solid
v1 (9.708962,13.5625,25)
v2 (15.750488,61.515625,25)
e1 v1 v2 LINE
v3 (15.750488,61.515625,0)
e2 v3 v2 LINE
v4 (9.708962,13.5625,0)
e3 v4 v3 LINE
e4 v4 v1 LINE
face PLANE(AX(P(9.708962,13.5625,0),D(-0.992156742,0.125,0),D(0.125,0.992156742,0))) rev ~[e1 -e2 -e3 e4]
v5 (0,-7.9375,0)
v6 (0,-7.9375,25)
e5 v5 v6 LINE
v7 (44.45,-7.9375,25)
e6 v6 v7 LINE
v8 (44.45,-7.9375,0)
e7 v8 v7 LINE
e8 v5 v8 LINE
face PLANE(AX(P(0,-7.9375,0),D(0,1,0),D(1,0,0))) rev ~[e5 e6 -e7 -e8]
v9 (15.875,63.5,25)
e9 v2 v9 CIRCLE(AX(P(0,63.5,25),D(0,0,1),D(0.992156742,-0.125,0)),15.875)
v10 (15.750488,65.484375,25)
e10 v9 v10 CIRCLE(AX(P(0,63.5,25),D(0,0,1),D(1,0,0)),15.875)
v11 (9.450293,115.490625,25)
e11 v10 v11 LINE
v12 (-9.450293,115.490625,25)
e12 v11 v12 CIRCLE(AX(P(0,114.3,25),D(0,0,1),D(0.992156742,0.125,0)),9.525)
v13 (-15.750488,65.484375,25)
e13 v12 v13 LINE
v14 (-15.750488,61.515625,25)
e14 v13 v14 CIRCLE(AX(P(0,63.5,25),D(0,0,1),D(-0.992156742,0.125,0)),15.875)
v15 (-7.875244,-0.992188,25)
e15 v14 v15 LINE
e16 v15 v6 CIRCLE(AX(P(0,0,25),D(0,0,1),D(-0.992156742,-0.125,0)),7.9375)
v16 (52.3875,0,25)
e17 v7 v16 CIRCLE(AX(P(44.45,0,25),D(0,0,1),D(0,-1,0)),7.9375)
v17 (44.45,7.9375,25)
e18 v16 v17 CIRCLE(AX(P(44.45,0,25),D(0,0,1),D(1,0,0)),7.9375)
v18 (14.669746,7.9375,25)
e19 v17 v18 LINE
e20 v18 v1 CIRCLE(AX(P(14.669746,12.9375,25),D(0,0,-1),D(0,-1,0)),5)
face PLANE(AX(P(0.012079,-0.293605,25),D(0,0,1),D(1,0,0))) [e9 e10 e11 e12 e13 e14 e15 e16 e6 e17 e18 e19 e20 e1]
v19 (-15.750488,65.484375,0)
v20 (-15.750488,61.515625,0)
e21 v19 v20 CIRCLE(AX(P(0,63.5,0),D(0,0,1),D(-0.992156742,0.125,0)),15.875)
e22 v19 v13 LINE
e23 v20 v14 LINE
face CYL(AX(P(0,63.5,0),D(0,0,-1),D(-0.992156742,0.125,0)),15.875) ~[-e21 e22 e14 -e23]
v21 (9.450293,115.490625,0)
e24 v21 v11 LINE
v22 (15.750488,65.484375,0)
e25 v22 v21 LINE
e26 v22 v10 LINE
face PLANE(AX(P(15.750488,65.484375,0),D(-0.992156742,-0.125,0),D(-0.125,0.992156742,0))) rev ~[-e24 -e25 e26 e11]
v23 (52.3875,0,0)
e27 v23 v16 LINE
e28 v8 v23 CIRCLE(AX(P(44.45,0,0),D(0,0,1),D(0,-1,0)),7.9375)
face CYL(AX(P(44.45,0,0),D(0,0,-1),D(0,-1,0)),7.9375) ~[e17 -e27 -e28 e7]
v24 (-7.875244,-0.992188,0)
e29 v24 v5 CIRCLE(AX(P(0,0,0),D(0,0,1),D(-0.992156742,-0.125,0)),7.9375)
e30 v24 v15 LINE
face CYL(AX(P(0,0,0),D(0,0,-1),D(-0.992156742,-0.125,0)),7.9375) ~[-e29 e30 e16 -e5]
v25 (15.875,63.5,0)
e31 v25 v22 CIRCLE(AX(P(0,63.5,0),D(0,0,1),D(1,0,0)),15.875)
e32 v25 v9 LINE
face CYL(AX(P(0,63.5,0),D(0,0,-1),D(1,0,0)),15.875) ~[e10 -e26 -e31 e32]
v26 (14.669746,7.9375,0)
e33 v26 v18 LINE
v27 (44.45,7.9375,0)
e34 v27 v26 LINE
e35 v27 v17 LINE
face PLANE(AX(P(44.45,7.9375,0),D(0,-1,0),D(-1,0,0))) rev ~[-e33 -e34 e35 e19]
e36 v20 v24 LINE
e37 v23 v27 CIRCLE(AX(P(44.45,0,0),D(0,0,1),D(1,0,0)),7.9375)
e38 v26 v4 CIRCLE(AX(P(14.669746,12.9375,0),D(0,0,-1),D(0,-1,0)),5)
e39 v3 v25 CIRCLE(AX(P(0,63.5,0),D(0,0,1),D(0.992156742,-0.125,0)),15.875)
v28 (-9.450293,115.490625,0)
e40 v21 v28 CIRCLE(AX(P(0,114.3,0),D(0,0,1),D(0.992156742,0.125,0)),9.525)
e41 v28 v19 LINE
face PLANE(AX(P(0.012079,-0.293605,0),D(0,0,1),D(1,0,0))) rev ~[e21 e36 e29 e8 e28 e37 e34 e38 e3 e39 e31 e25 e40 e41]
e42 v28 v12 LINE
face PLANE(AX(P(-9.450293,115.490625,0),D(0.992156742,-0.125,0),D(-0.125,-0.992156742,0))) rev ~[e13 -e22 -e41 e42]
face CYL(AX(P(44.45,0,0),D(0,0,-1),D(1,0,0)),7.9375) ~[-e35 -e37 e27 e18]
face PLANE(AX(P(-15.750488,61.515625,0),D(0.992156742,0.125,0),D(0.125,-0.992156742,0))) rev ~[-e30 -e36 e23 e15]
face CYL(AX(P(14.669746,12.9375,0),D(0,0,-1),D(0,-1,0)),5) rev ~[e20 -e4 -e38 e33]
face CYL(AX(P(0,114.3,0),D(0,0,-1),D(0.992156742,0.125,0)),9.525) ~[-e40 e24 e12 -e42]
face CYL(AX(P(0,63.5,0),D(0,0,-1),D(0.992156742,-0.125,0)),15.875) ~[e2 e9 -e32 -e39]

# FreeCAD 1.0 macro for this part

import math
import FreeCAD as App
import Part
import Sketcher
from FreeCAD import Vector
Q = App.Units.Quantity

doc = App.newDocument("Part")
body = doc.addObject("PartDesign::Body", "Body")

sketch1 = body.newObject("Sketcher::SketchObject", "Sketch")
sketch1.AttachmentSupport = (doc.getObject("XY_Plane"), [""])
sketch1.MapMode = "FlatFace"
sketch1.addGeometry([
    Part.ArcOfCircle(Part.Circle(Vector(0, 0, 0), Vector(0, 0, 1), 7.9375), math.radians(-172.819244), math.radians(-90)),
    Part.LineSegment(Vector(0, -7.9375, 0), Vector(44.45, -7.9375, 0)),
    Part.ArcOfCircle(Part.Circle(Vector(44.45, 0, 0), Vector(0, 0, 1), 7.9375), math.radians(-90), math.radians(0)),
    Part.ArcOfCircle(Part.Circle(Vector(44.45, 0, 0), Vector(0, 0, 1), 7.9375), math.radians(0), math.radians(90)),
    Part.LineSegment(Vector(44.45, 7.9375, 0), Vector(14.669746, 7.9375, 0)),
    Part.ArcOfCircle(Part.Circle(Vector(14.669746, 12.9375, 0), Vector(0, 0, 1), 5), math.radians(172.819244), math.radians(270)),
    Part.LineSegment(Vector(9.708962, 13.5625, 0), Vector(15.750488, 61.515625, 0)),
    Part.ArcOfCircle(Part.Circle(Vector(0, 63.5, 0), Vector(0, 0, 1), 15.875), math.radians(-7.180756), math.radians(0)),
    Part.ArcOfCircle(Part.Circle(Vector(0, 63.5, 0), Vector(0, 0, 1), 15.875), math.radians(0), math.radians(7.180756)),
    Part.LineSegment(Vector(15.750488, 65.484375, 0), Vector(9.450293, 115.490625, 0)),
    Part.ArcOfCircle(Part.Circle(Vector(0, 114.3, 0), Vector(0, 0, 1), 9.525), math.radians(7.180756), math.radians(172.819244)),
    Part.LineSegment(Vector(-9.450293, 115.490625, 0), Vector(-15.750488, 65.484375, 0)),
    Part.ArcOfCircle(Part.Circle(Vector(0, 63.5, 0), Vector(0, 0, 1), 15.875), math.radians(172.819244), math.radians(187.180756)),
    Part.LineSegment(Vector(-15.750488, 61.515625, 0), Vector(-7.875244, -0.992188, 0)),
], False)
sketch1.addConstraint([
    Sketcher.Constraint("Tangent", 0, 2, 1, 1),
    Sketcher.Constraint("Tangent", 1, 2, 2, 1),
    Sketcher.Constraint("Tangent", 2, 2, 3, 1),
    Sketcher.Constraint("Tangent", 3, 2, 4, 1),
    Sketcher.Constraint("Tangent", 4, 2, 5, 2),
    Sketcher.Constraint("Tangent", 5, 1, 6, 1),
    Sketcher.Constraint("Tangent", 6, 2, 7, 1),
    Sketcher.Constraint("Tangent", 7, 2, 8, 1),
    Sketcher.Constraint("Tangent", 8, 2, 9, 1),
    Sketcher.Constraint("Tangent", 9, 2, 10, 1),
    Sketcher.Constraint("Tangent", 10, 2, 11, 1),
    Sketcher.Constraint("Tangent", 11, 2, 12, 1),
    Sketcher.Constraint("Tangent", 12, 2, 13, 1),
    Sketcher.Constraint("Tangent", 13, 2, 0, 1),
    Sketcher.Constraint("Horizontal", 1),
    Sketcher.Constraint("Horizontal", 4),
    Sketcher.Constraint("Coincident", 0, 3, -1, 1),
    Sketcher.Constraint("Coincident", 12, 3, 7, 3),
    Sketcher.Constraint("Equal", 0, 2),
    Sketcher.Constraint("Equal", 2, 3),
    Sketcher.Constraint("Equal", 7, 8),
    Sketcher.Constraint("Equal", 8, 12),
    Sketcher.Constraint("Symmetric", 9, 2, 10, 2, -2),
    Sketcher.Constraint("PointOnObject", 2, 2, -1),
    Sketcher.Constraint("Parallel", 6, 11),
    Sketcher.Constraint("Parallel", 9, 13),
    Sketcher.Constraint("Horizontal", 12, 3, 7, 2),
    Sketcher.Constraint("Radius", 0, Q("0.3125 in")),
    Sketcher.Constraint("Radius", 7, Q("0.625 in")),
    Sketcher.Constraint("Radius", 10, Q("0.375 in")),
    Sketcher.Constraint("DistanceY", 7, 3, 10, 3, Q("2 in")),
    Sketcher.Constraint("DistanceX", 1, 1, 1, 2, Q("1.75 in")),
    Sketcher.Constraint("Radius", 5, 5.0),
])
pad1 = body.newObject("PartDesign::Pad", "Pad")
pad1.Profile = sketch1
pad1.Length = 25

doc.recompute()
